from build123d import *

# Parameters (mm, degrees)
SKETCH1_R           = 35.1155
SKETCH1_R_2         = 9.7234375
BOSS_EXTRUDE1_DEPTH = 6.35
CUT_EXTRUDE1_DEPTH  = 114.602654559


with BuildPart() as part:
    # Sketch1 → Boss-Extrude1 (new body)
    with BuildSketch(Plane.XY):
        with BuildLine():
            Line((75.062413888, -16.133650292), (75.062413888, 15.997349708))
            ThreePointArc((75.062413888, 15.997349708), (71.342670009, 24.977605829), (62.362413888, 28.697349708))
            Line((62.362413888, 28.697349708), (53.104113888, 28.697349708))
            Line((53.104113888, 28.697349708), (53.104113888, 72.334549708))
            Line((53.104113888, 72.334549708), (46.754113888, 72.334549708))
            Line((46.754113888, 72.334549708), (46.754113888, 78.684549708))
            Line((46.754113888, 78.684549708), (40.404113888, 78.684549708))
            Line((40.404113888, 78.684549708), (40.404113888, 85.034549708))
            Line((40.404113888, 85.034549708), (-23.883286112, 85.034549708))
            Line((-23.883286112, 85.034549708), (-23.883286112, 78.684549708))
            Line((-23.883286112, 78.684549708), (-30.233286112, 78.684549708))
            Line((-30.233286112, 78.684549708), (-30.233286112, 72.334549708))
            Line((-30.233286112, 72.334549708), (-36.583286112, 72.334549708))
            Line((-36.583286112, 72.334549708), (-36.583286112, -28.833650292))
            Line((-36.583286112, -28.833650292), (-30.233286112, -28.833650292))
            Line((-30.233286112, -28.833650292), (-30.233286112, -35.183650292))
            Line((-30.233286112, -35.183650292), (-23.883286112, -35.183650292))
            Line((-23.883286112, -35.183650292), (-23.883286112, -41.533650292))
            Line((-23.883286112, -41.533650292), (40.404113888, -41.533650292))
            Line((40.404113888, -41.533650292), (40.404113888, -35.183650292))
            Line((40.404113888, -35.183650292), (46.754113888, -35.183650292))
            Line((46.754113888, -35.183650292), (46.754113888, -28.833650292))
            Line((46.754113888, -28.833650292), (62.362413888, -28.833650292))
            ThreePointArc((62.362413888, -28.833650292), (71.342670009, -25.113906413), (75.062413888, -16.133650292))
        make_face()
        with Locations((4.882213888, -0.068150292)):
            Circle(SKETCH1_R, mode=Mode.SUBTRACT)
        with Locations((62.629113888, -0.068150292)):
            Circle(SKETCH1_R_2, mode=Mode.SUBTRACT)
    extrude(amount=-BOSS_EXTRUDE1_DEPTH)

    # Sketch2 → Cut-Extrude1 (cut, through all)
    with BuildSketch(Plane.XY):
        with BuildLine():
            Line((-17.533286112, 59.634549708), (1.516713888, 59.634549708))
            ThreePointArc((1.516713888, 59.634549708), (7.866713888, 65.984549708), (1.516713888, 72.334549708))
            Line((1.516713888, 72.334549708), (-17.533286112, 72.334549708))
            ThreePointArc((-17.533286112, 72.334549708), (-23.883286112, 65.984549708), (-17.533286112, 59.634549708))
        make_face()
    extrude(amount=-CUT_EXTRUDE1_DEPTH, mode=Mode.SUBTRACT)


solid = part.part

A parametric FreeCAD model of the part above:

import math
import FreeCAD as App
import Part
import Sketcher
from FreeCAD import Vector
Q = App.Units.Quantity

doc = App.newDocument("Part")
body = doc.addObject("PartDesign::Body", "Body")

sketch1 = body.newObject("Sketcher::SketchObject", "Sketch")
sketch1.AttachmentSupport = (doc.getObject("XY_Plane"), [""])
sketch1.MapMode = "FlatFace"
sketch1.addGeometry(Part.LineSegment(Vector(75, -16, 0), Vector(75, 16, 0)), False)
sketch1.addGeometry(Part.ArcOfCircle(Part.Circle(Vector(62, 16, 0), Vector(0, 0, 1), 13), math.radians(0), math.radians(90)), False)
sketch1.addGeometry(Part.LineSegment(Vector(62, 29, 0), Vector(53, 29, 0)), False)
sketch1.addGeometry(Part.LineSegment(Vector(53, 29, 0), Vector(53, 72, 0)), False)
sketch1.addGeometry(Part.LineSegment(Vector(53, 72, 0), Vector(47, 72, 0)), False)
sketch1.addGeometry(Part.LineSegment(Vector(47, 72, 0), Vector(47, 79, 0)), False)
sketch1.addGeometry(Part.LineSegment(Vector(47, 79, 0), Vector(40, 79, 0)), False)
sketch1.addGeometry(Part.LineSegment(Vector(40, 79, 0), Vector(40, 85, 0)), False)
sketch1.addGeometry(Part.LineSegment(Vector(40, 85, 0), Vector(-24, 85, 0)), False)
sketch1.addGeometry(Part.LineSegment(Vector(-24, 85, 0), Vector(-24, 79, 0)), False)
sketch1.addGeometry(Part.LineSegment(Vector(-24, 79, 0), Vector(-30, 79, 0)), False)
sketch1.addGeometry(Part.LineSegment(Vector(-30, 79, 0), Vector(-30, 72, 0)), False)
sketch1.addGeometry(Part.LineSegment(Vector(-30, 72, 0), Vector(-37, 72, 0)), False)
sketch1.addGeometry(Part.LineSegment(Vector(-37, 72, 0), Vector(-37, -29, 0)), False)
sketch1.addGeometry(Part.LineSegment(Vector(-37, -29, 0), Vector(-30, -29, 0)), False)
sketch1.addGeometry(Part.LineSegment(Vector(-30, -29, 0), Vector(-30, -35, 0)), False)
sketch1.addGeometry(Part.LineSegment(Vector(-30, -35, 0), Vector(-24, -35, 0)), False)
sketch1.addGeometry(Part.LineSegment(Vector(-24, -35, 0), Vector(-24, -42, 0)), False)
sketch1.addGeometry(Part.LineSegment(Vector(-24, -42, 0), Vector(40, -42, 0)), False)
sketch1.addGeometry(Part.LineSegment(Vector(40, -42, 0), Vector(40, -35, 0)), False)
sketch1.addGeometry(Part.LineSegment(Vector(40, -35, 0), Vector(47, -35, 0)), False)
sketch1.addGeometry(Part.LineSegment(Vector(47, -35, 0), Vector(47, -29, 0)), False)
sketch1.addGeometry(Part.LineSegment(Vector(47, -29, 0), Vector(62, -29, 0)), False)
sketch1.addGeometry(Part.ArcOfCircle(Part.Circle(Vector(62, -16, 0), Vector(0, 0, 1), 13), math.radians(-90), math.radians(0)), False)
sketch1.addGeometry(Part.Circle(Vector(5, 0, 0), Vector(0, 0, 1), 35), False)
sketch1.addGeometry(Part.Circle(Vector(63, 0, 0), Vector(0, 0, 1), 10), False)
sketch1.addConstraint(Sketcher.Constraint("Tangent", 0, 2, 1, 1))
sketch1.addConstraint(Sketcher.Constraint("Tangent", 1, 2, 2, 1))
sketch1.addConstraint(Sketcher.Constraint("Coincident", 2, 2, 3, 1))
sketch1.addConstraint(Sketcher.Constraint("Coincident", 3, 2, 4, 1))
sketch1.addConstraint(Sketcher.Constraint("Coincident", 4, 2, 5, 1))
sketch1.addConstraint(Sketcher.Constraint("Coincident", 5, 2, 6, 1))
sketch1.addConstraint(Sketcher.Constraint("Coincident", 6, 2, 7, 1))
sketch1.addConstraint(Sketcher.Constraint("Coincident", 7, 2, 8, 1))
sketch1.addConstraint(Sketcher.Constraint("Coincident", 8, 2, 9, 1))
sketch1.addConstraint(Sketcher.Constraint("Coincident", 9, 2, 10, 1))
sketch1.addConstraint(Sketcher.Constraint("Coincident", 10, 2, 11, 1))
sketch1.addConstraint(Sketcher.Constraint("Coincident", 11, 2, 12, 1))
sketch1.addConstraint(Sketcher.Constraint("Coincident", 12, 2, 13, 1))
sketch1.addConstraint(Sketcher.Constraint("Coincident", 13, 2, 14, 1))
sketch1.addConstraint(Sketcher.Constraint("Coincident", 14, 2, 15, 1))
sketch1.addConstraint(Sketcher.Constraint("Coincident", 15, 2, 16, 1))
sketch1.addConstraint(Sketcher.Constraint("Coincident", 16, 2, 17, 1))
sketch1.addConstraint(Sketcher.Constraint("Coincident", 17, 2, 18, 1))
sketch1.addConstraint(Sketcher.Constraint("Coincident", 18, 2, 19, 1))
sketch1.addConstraint(Sketcher.Constraint("Coincident", 19, 2, 20, 1))
sketch1.addConstraint(Sketcher.Constraint("Coincident", 20, 2, 21, 1))
sketch1.addConstraint(Sketcher.Constraint("Coincident", 21, 2, 22, 1))
sketch1.addConstraint(Sketcher.Constraint("Tangent", 22, 2, 23, 1))
sketch1.addConstraint(Sketcher.Constraint("Tangent", 23, 2, 0, 1))
sketch1.addConstraint(Sketcher.Constraint("Vertical", 0))
sketch1.addConstraint(Sketcher.Constraint("Horizontal", 2))
sketch1.addConstraint(Sketcher.Constraint("Vertical", 3))
sketch1.addConstraint(Sketcher.Constraint("Horizontal", 4))
sketch1.addConstraint(Sketcher.Constraint("Vertical", 5))
sketch1.addConstraint(Sketcher.Constraint("Horizontal", 6))
sketch1.addConstraint(Sketcher.Constraint("Vertical", 7))
sketch1.addConstraint(Sketcher.Constraint("Horizontal", 8))
sketch1.addConstraint(Sketcher.Constraint("Vertical", 9))
sketch1.addConstraint(Sketcher.Constraint("Horizontal", 10))
sketch1.addConstraint(Sketcher.Constraint("Vertical", 11))
sketch1.addConstraint(Sketcher.Constraint("Horizontal", 12))
sketch1.addConstraint(Sketcher.Constraint("Vertical", 13))
sketch1.addConstraint(Sketcher.Constraint("Horizontal", 14))
sketch1.addConstraint(Sketcher.Constraint("Vertical", 15))
sketch1.addConstraint(Sketcher.Constraint("Horizontal", 16))
sketch1.addConstraint(Sketcher.Constraint("Vertical", 17))
sketch1.addConstraint(Sketcher.Constraint("Horizontal", 18))
sketch1.addConstraint(Sketcher.Constraint("Vertical", 19))
sketch1.addConstraint(Sketcher.Constraint("Horizontal", 20))
sketch1.addConstraint(Sketcher.Constraint("Vertical", 21))
sketch1.addConstraint(Sketcher.Constraint("Horizontal", 22))
sketch1.addConstraint(Sketcher.Constraint("Equal", 1, 23))
sketch1.addConstraint(Sketcher.Constraint("Horizontal", 24, 3, 25, 3))
sketch1.addConstraint(Sketcher.Constraint("Horizontal", 6, 2, 9, 2))
sketch1.addConstraint(Sketcher.Constraint("Horizontal", 4, 2, 11, 2))
sketch1.addConstraint(Sketcher.Constraint("Horizontal", 16, 2, 19, 2))
sketch1.addConstraint(Sketcher.Constraint("Horizontal", 14, 2, 21, 2))
sketch1.addConstraint(Sketcher.Constraint("Vertical", 11, 2, 14, 2))
sketch1.addConstraint(Sketcher.Constraint("Vertical", 9, 2, 16, 2))
sketch1.addConstraint(Sketcher.Constraint("Vertical", 7, 2, 18, 2))
sketch1.addConstraint(Sketcher.Constraint("Vertical", 5, 2, 20, 2))
sketch1.addConstraint(Sketcher.Constraint("Equal", 4, 6))
sketch1.addConstraint(Sketcher.Constraint("Equal", 6, 10))
sketch1.addConstraint(Sketcher.Constraint("Equal", 10, 12))
sketch1.addConstraint(Sketcher.Constraint("Equal", 20, 5))
sketch1.addConstraint(Sketcher.Constraint("Equal", 5, 7))
sketch1.addConstraint(Sketcher.Constraint("Equal", 11, 15))
sketch1.addConstraint(Sketcher.Constraint("Equal", 15, 17))
sketch1.addConstraint(Sketcher.Constraint("Radius", 1, Q("0.5 in")))
sketch1.addConstraint(Sketcher.Constraint("Diameter", 24, Q("2.765 in")))
sketch1.addConstraint(Sketcher.Constraint("Diameter", 25, Q("0.765625 in")))
sketch1.addConstraint(Sketcher.Constraint("DistanceY", 18, 2, 23, 3, Q("1 in")))
sketch1.addConstraint(Sketcher.Constraint("DistanceX", 8, 2, 8, 1, Q("2.531 in")))
sketch1.addConstraint(Sketcher.Constraint("DistanceY", 0, 1, 0, 2, Q("1.265 in")))
sketch1.addConstraint(Sketcher.Constraint("DistanceY", 3, 1, 3, 2, Q("1.718 in")))
sketch1.addConstraint(Sketcher.Constraint("DistanceX", 2, 2, 2, 1, Q("0.3645 in")))
sketch1.addConstraint(Sketcher.Constraint("DistanceX", 24, 3, 1, 3, Q("2.263 in")))
sketch1.addConstraint(Sketcher.Constraint("DistanceX", 2, 2, 25, 3, Q("0.375 in")))
sketch1.addConstraint(Sketcher.Constraint("DistanceY", 24, 3, 1, 3, Q("0.6325 in")))
sketch1.addConstraint(Sketcher.Constraint("DistanceY", -1, 1, 1, 3, Q("15.99735 mm")))
sketch1.addConstraint(Sketcher.Constraint("DistanceX", -1, 1, 1, 3, Q("62.362414 mm")))
pad1 = body.newObject("PartDesign::Pad", "Pad")
pad1.Profile = sketch1
pad1.Length = Q("0.25 in")
pad1.Reversed = True

sketch2 = body.newObject("Sketcher::SketchObject", "Sketch001")
sketch2.AttachmentSupport = (doc.getObject("XY_Plane"), [""])
sketch2.MapMode = "FlatFace"
sketch2.addGeometry(Part.LineSegment(Vector(-18, 60, 0), Vector(2, 60, 0)), False)
sketch2.addGeometry(Part.ArcOfCircle(Part.Circle(Vector(2, 66, 0), Vector(0, 0, 1), 6), math.radians(-90), math.radians(90)), False)
sketch2.addGeometry(Part.LineSegment(Vector(2, 72, 0), Vector(-18, 72, 0)), False)
sketch2.addGeometry(Part.ArcOfCircle(Part.Circle(Vector(-18, 66, 0), Vector(0, 0, 1), 6), math.radians(90), math.radians(270)), False)
sketch2.addConstraint(Sketcher.Constraint("Tangent", 0, 2, 1, 1))
sketch2.addConstraint(Sketcher.Constraint("Tangent", 1, 2, 2, 1))
sketch2.addConstraint(Sketcher.Constraint("Tangent", 2, 2, 3, 1))
sketch2.addConstraint(Sketcher.Constraint("Tangent", 3, 2, 0, 1))
sketch2.addConstraint(Sketcher.Constraint("Horizontal", 0))
sketch2.addConstraint(Sketcher.Constraint("Horizontal", 2))
sketch2.addConstraint(Sketcher.Constraint("Radius", 1, Q("0.25 in")))
sketch2.addConstraint(Sketcher.Constraint("DistanceX", 0, 1, 0, 2, Q("0.75 in")))
sketch2.addConstraint(Sketcher.Constraint("DistanceY", -1, 1, 1, 3, Q("65.98455 mm")))
sketch2.addConstraint(Sketcher.Constraint("DistanceX", -1, 1, 1, 3, Q("1.516714 mm")))
pocket1 = body.newObject("PartDesign::Pocket", "Pocket")
pocket1.Profile = sketch2
pocket1.Type = "ThroughAll"

doc.recompute()
